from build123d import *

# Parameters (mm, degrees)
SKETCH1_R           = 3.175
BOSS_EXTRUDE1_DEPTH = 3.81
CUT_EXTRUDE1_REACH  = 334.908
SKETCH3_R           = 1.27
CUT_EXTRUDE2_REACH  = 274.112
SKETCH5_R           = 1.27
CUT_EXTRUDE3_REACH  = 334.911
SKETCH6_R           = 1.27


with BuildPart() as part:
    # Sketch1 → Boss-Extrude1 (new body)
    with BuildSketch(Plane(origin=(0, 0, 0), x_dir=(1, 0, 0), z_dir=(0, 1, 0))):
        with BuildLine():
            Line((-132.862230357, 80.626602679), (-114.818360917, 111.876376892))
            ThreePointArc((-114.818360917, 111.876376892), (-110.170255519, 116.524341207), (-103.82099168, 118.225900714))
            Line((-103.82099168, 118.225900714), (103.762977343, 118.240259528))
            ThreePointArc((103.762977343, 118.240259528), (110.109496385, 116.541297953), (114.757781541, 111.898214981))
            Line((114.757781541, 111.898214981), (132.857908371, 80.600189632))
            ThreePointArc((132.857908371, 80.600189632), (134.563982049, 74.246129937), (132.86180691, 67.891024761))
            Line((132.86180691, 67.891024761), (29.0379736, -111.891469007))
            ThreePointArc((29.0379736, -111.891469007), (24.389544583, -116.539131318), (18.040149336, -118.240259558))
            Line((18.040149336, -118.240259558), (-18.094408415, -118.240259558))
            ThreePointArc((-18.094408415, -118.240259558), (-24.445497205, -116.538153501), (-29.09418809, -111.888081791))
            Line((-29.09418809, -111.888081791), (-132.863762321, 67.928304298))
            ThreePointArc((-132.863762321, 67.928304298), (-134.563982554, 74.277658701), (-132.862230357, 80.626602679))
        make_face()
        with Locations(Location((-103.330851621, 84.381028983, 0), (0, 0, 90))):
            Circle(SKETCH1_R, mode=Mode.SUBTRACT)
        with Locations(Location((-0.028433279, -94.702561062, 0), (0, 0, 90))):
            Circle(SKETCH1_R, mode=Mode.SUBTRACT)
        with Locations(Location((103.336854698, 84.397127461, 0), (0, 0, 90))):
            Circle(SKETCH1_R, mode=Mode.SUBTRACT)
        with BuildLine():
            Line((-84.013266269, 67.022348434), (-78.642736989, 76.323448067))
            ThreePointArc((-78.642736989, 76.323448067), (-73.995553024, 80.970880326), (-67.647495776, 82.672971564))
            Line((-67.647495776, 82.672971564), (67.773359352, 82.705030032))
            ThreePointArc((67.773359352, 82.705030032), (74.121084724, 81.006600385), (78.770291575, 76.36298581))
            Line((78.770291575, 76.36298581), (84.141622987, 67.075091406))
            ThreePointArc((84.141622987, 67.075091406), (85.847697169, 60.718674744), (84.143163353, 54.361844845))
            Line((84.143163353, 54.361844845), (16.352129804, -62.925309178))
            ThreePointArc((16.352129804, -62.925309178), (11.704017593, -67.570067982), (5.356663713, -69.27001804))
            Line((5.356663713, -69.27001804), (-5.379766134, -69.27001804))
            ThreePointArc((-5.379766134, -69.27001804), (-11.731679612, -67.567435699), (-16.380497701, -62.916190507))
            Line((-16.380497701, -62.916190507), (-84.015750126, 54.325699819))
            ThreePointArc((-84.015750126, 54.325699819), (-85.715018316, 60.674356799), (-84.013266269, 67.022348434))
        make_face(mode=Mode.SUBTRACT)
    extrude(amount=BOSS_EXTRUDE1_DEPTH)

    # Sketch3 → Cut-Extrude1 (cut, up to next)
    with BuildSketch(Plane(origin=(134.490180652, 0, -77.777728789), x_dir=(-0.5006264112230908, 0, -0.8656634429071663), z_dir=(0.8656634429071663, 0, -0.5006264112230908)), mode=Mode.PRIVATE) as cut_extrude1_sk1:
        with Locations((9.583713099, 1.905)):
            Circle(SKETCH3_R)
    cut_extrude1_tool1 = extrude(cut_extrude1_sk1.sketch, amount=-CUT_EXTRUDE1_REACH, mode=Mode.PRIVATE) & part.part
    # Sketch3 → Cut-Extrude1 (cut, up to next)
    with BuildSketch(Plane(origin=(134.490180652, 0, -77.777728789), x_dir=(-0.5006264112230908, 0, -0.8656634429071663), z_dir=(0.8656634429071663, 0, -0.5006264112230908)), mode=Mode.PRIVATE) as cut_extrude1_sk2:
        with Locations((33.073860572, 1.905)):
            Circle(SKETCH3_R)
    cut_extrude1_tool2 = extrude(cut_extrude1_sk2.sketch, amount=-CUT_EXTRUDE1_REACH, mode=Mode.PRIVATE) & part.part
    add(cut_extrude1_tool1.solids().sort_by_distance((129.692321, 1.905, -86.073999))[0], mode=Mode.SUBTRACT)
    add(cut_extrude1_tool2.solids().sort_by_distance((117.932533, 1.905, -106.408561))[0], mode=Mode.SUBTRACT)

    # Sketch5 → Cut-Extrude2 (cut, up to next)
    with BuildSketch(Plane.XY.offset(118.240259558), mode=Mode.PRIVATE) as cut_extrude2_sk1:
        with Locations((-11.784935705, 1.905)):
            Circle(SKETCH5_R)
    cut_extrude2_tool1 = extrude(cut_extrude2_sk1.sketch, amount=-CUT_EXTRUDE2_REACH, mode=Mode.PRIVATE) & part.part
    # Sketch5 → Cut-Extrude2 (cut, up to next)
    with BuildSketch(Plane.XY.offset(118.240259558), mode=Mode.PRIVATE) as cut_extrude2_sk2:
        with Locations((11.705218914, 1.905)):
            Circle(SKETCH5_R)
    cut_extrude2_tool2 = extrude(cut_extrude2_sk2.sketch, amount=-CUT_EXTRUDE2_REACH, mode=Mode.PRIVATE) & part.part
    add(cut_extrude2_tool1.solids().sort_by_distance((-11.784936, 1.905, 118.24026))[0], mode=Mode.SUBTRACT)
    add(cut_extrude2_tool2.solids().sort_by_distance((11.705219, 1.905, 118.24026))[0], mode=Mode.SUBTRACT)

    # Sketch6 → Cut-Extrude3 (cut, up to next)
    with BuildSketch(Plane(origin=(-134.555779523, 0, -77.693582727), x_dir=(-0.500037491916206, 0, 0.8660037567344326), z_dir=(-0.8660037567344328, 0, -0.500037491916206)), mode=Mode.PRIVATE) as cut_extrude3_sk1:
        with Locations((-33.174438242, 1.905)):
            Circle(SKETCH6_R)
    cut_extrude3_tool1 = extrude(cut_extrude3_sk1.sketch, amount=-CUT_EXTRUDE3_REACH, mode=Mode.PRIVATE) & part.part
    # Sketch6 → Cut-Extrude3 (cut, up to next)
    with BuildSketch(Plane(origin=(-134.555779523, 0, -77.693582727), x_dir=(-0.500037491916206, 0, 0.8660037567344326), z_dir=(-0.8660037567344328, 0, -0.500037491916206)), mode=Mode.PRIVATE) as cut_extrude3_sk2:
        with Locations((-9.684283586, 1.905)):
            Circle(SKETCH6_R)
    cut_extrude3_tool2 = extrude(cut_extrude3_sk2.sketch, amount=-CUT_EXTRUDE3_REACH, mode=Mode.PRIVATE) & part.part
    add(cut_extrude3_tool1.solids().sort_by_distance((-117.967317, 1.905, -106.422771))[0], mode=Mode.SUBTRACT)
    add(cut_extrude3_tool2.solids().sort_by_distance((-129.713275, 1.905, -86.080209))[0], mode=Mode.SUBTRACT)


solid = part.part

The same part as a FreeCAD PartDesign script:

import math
import FreeCAD as App
import Part
import Sketcher
Q = App.Units.Quantity

doc = App.newDocument("Part")
body = doc.addObject("PartDesign::Body", "Body")

# Sketch on XZ plane
sketch1 = body.newObject("Sketcher::SketchObject", "Sketch")
sketch1.AttachmentSupport = (doc.getObject("XZ_Plane"), [""])
sketch1.MapMode = "FlatFace"
sketch1.addGeometry([
    Part.LineSegment(App.Vector(-114.8, -111.9, 0), App.Vector(-132.9, -80.6, 0)),  # 0
    Part.ArcOfCircle(Part.Circle(App.Vector(-121.9, -74.3, 0), App.Vector(0, 0, 1), 12.7), math.radians(150), math.radians(210)),  # 1
    Part.LineSegment(App.Vector(-132.9, -67.9, 0), App.Vector(-29.1, 111.9, 0)),  # 2
    Part.ArcOfCircle(Part.Circle(App.Vector(-18.1, 105.5, 0), App.Vector(0, 0, 1), 12.7), math.radians(90), math.radians(150)),  # 3
    Part.LineSegment(App.Vector(-18.1, 118.2, 0), App.Vector(18, 118.2, 0)),  # 4
    Part.ArcOfCircle(Part.Circle(App.Vector(18, 105.5, 0), App.Vector(0, 0, 1), 12.7), math.radians(30), math.radians(90)),  # 5
    Part.LineSegment(App.Vector(29, 111.9, 0), App.Vector(132.9, -67.9, 0)),  # 6
    Part.ArcOfCircle(Part.Circle(App.Vector(121.9, -74.2, 0), App.Vector(0, 0, 1), 12.7), math.radians(-30), math.radians(30)),  # 7
    Part.LineSegment(App.Vector(132.9, -80.6, 0), App.Vector(114.8, -111.9, 0)),  # 8
    Part.ArcOfCircle(Part.Circle(App.Vector(103.8, -105.5, 0), App.Vector(0, 0, 1), 12.7), math.radians(-90), math.radians(-30)),  # 9
    Part.LineSegment(App.Vector(103.8, -118.2, 0), App.Vector(-103.8, -118.2, 0)),  # 10
    Part.ArcOfCircle(Part.Circle(App.Vector(-103.8, -105.5, 0), App.Vector(0, 0, 1), 12.7), math.radians(-150), math.radians(-90)),  # 11
    Part.Circle(App.Vector(0, 94.7, 0), App.Vector(0, 0, 1), 3.2),  # 12
    Part.LineSegment(App.Vector(-84, -67, 0), App.Vector(-78.6, -76.3, 0)),  # 13
    Part.ArcOfCircle(Part.Circle(App.Vector(-67.6, -70, 0), App.Vector(0, 0, 1), 12.7), math.radians(-150), math.radians(-90)),  # 14
    Part.LineSegment(App.Vector(-67.6, -82.7, 0), App.Vector(67.8, -82.7, 0)),  # 15
    Part.ArcOfCircle(Part.Circle(App.Vector(67.8, -70, 0), App.Vector(0, 0, 1), 12.7), math.radians(-90), math.radians(-30)),  # 16
    Part.LineSegment(App.Vector(78.8, -76.4, 0), App.Vector(84.1, -67.1, 0)),  # 17
    Part.ArcOfCircle(Part.Circle(App.Vector(73.1, -60.7, 0), App.Vector(0, 0, 1), 12.7), math.radians(-30), math.radians(30)),  # 18
    Part.LineSegment(App.Vector(84.1, -54.4, 0), App.Vector(16.4, 62.9, 0)),  # 19
    Part.ArcOfCircle(Part.Circle(App.Vector(5.4, 56.6, 0), App.Vector(0, 0, 1), 12.7), math.radians(30), math.radians(90)),  # 20
    Part.LineSegment(App.Vector(5.4, 69.3, 0), App.Vector(-5.4, 69.3, 0)),  # 21
    Part.ArcOfCircle(Part.Circle(App.Vector(-5.4, 56.6, 0), App.Vector(0, 0, 1), 12.7), math.radians(90), math.radians(150)),  # 22
    Part.LineSegment(App.Vector(-16.4, 62.9, 0), App.Vector(-84, -54.3, 0)),  # 23
    Part.ArcOfCircle(Part.Circle(App.Vector(-73, -60.7, 0), App.Vector(0, 0, 1), 12.7), math.radians(150), math.radians(210)),  # 24
    Part.Circle(App.Vector(103.3, -84.4, 0), App.Vector(0, 0, 1), 3.2),  # 25
    Part.Circle(App.Vector(-103.3, -84.4, 0), App.Vector(0, 0, 1), 3.2),  # 26
], False)
sketch1.addConstraint([
    Sketcher.Constraint("Tangent", 0, 2, 1, 2),
    Sketcher.Constraint("Tangent", 1, 1, 2, 1),
    Sketcher.Constraint("Tangent", 2, 2, 3, 2),
    Sketcher.Constraint("Tangent", 3, 1, 4, 1),
    Sketcher.Constraint("Tangent", 4, 2, 5, 2),
    Sketcher.Constraint("Tangent", 5, 1, 6, 1),
    Sketcher.Constraint("Tangent", 6, 2, 7, 2),
    Sketcher.Constraint("Tangent", 7, 1, 8, 1),
    Sketcher.Constraint("Tangent", 8, 2, 9, 2),
    Sketcher.Constraint("Tangent", 9, 1, 10, 1),
    Sketcher.Constraint("Tangent", 10, 2, 11, 2),
    Sketcher.Constraint("Tangent", 11, 1, 0, 1),
    Sketcher.Constraint("Tangent", 13, 2, 14, 1),
    Sketcher.Constraint("Tangent", 14, 2, 15, 1),
    Sketcher.Constraint("Tangent", 15, 2, 16, 1),
    Sketcher.Constraint("Tangent", 16, 2, 17, 1),
    Sketcher.Constraint("Tangent", 17, 2, 18, 1),
    Sketcher.Constraint("Tangent", 18, 2, 19, 1),
    Sketcher.Constraint("Tangent", 19, 2, 20, 1),
    Sketcher.Constraint("Tangent", 20, 2, 21, 1),
    Sketcher.Constraint("Tangent", 21, 2, 22, 1),
    Sketcher.Constraint("Tangent", 22, 2, 23, 1),
    Sketcher.Constraint("Tangent", 23, 2, 24, 1),
    Sketcher.Constraint("Tangent", 24, 2, 13, 1),
    Sketcher.Constraint("Horizontal", 4),
    Sketcher.Constraint("Horizontal", 21),
    Sketcher.Constraint("Equal", 1, 3),
    Sketcher.Constraint("Equal", 3, 5),
    Sketcher.Constraint("Equal", 5, 7),
    Sketcher.Constraint("Equal", 7, 9),
    Sketcher.Constraint("Equal", 9, 11),
    Sketcher.Constraint("Equal", 11, 14),
    Sketcher.Constraint("Equal", 14, 16),
    Sketcher.Constraint("Equal", 16, 18),
    Sketcher.Constraint("Equal", 18, 20),
    Sketcher.Constraint("Equal", 20, 22),
    Sketcher.Constraint("Equal", 22, 24),
    Sketcher.Constraint("Equal", 12, 25),
    Sketcher.Constraint("Equal", 25, 26),
    Sketcher.Constraint("Parallel", 0, 13),
    Sketcher.Constraint("Parallel", 8, 17),
    Sketcher.Constraint("Radius", 1, Q("0.5 in")),
    Sketcher.Constraint("Diameter", 12, Q("0.25 in")),
    Sketcher.Constraint("DistanceX", 21, 2, 21, 1, 10.73643),
    Sketcher.Constraint("DistanceY", 11, 3, -1, 1, 105.525901),
    Sketcher.Constraint("DistanceY", 23, 2, -1, 1, 54.3257),
    Sketcher.Constraint("DistanceY", 12, 3, 3, 3, 10.837698),
    Sketcher.Constraint("DistanceX", 12, 3, 16, 3, 67.804799),
    Sketcher.Constraint("DistanceY", 7, 3, 18, 3, 13.525098),
    Sketcher.Constraint("DistanceY", 14, 3, 24, 3, 9.3011),
    Sketcher.Constraint("DistanceX", 25, 3, 9, 3, 0.427001),
    Sketcher.Constraint("DistanceY", 11, 3, 0, 2, 24.899298),
    Sketcher.Constraint("DistanceY", 0, 2, 1, 1, 12.698298),
    Sketcher.Constraint("DistanceX", 7, 1, 6, 2, 0.003899),
    Sketcher.Constraint("DistanceX", 8, 2, 7, 3, 7.106201),
    Sketcher.Constraint("DistanceX", 26, 3, 23, 2, 19.315101),
    Sketcher.Constraint("Distance", 2, 207.61035),
    Sketcher.Constraint("Distance", 10, 207.58397),
    Sketcher.Constraint("Distance", 15, 135.420859),
    Sketcher.Constraint("Distance", 17, 10.729221),
    Sketcher.Constraint("Distance", 23, 135.35209),
    Sketcher.Constraint("DistanceX", 4, 1, 4, 2, 36.134558),
    Sketcher.Constraint("DistanceX", 3, 3, -1, 1, 18.094408),
    Sketcher.Constraint("DistanceY", -1, 1, 3, 3, 105.54026),
    Sketcher.Constraint("DistanceY", 9, 3, -1, 1, 105.54026),
    Sketcher.Constraint("DistanceX", 14, 3, -1, 1, 67.644489),
    Sketcher.Constraint("DistanceY", 14, 3, -1, 1, 69.972972),
    Sketcher.Constraint("DistanceY", 26, 3, -1, 1, 84.381029),
    Sketcher.Constraint("DistanceY", 25, 3, 18, 3, 23.679991),
])
pad1 = body.newObject("PartDesign::Pad", "Pad")
pad1.Profile = sketch1
pad1.Length = Q("0.15 in")
pad1.Reversed = True

# Sketch on an angled plane
sketch2 = body.newObject("Sketcher::SketchObject", "Sketch001")
sketch2.Placement = App.Placement(App.Vector(134.490181, 0, -77.777729), App.Rotation(App.Vector(-0.500626411, 0, -0.865663443), App.Vector(0, 1, 0), App.Vector(0.865663443, 0, -0.500626411), "ZXY"))
sketch2.addGeometry(Part.Circle(App.Vector(9.6, 1.9, 0), App.Vector(0, 0, 1), 1.3), False)
sketch2.addConstraint([
    Sketcher.Constraint("Diameter", 0, Q("0.1 in")),
    Sketcher.Constraint("DistanceY", -1, 1, 0, 3, Q("0.075 in")),
    Sketcher.Constraint("DistanceX", -1, 1, 0, 3, 9.583713),
])
pocket1 = body.newObject("PartDesign::Pocket", "Pocket")
pocket1.Profile = sketch2
pocket1.Type = "UpToFirst"

# Sketch on an angled plane
sketch3 = body.newObject("Sketcher::SketchObject", "Sketch002")
sketch3.Placement = App.Placement(App.Vector(134.490181, 0, -77.777729), App.Rotation(App.Vector(-0.500626411, 0, -0.865663443), App.Vector(0, 1, 0), App.Vector(0.865663443, 0, -0.500626411), "ZXY"))
sketch3.addGeometry(Part.Circle(App.Vector(33.1, 1.9, 0), App.Vector(0, 0, 1), 1.3), False)
sketch3.addConstraint([
    Sketcher.Constraint("Diameter", 0, Q("0.1 in")),
    Sketcher.Constraint("DistanceY", -1, 1, 0, 3, Q("0.075 in")),
    Sketcher.Constraint("DistanceX", -1, 1, 0, 3, 33.073861),
])
pocket2 = body.newObject("PartDesign::Pocket", "Pocket001")
pocket2.Profile = sketch3
pocket2.Type = "UpToFirst"

# Sketch on XY plane
sketch4 = body.newObject("Sketcher::SketchObject", "Sketch003")
sketch4.AttachmentSupport = (doc.getObject("XY_Plane"), [""])
sketch4.MapMode = "FlatFace"
sketch4.AttachmentOffset = App.Placement(App.Vector(0, 0, 118.24026), App.Rotation())
sketch4.addGeometry(Part.Circle(App.Vector(-11.8, 1.9, 0), App.Vector(0, 0, 1), 1.3), False)
sketch4.addConstraint([
    Sketcher.Constraint("Diameter", 0, Q("0.1 in")),
    Sketcher.Constraint("DistanceY", -1, 1, 0, 3, Q("0.075 in")),
    Sketcher.Constraint("DistanceX", 0, 3, -1, 1, 11.784936),
])
pocket3 = body.newObject("PartDesign::Pocket", "Pocket002")
pocket3.Profile = sketch4
pocket3.Type = "UpToFirst"

# Sketch on XY plane
sketch5 = body.newObject("Sketcher::SketchObject", "Sketch004")
sketch5.AttachmentSupport = (doc.getObject("XY_Plane"), [""])
sketch5.MapMode = "FlatFace"
sketch5.AttachmentOffset = App.Placement(App.Vector(0, 0, 118.24026), App.Rotation())
sketch5.addGeometry(Part.Circle(App.Vector(11.7, 1.9, 0), App.Vector(0, 0, 1), 1.3), False)
sketch5.addConstraint([
    Sketcher.Constraint("Diameter", 0, Q("0.1 in")),
    Sketcher.Constraint("DistanceY", -1, 1, 0, 3, Q("0.075 in")),
    Sketcher.Constraint("DistanceX", -1, 1, 0, 3, 11.705219),
])
pocket4 = body.newObject("PartDesign::Pocket", "Pocket003")
pocket4.Profile = sketch5
pocket4.Type = "UpToFirst"

# Sketch on an angled plane
sketch6 = body.newObject("Sketcher::SketchObject", "Sketch005")
sketch6.Placement = App.Placement(App.Vector(-134.55578, 0, -77.693583), App.Rotation(App.Vector(-0.500037492, 0, 0.866003757), App.Vector(0, 1.000000001, 0), App.Vector(-0.866003757, 0, -0.500037492), "ZXY"))
sketch6.addGeometry(Part.Circle(App.Vector(-33.2, 1.9, 0), App.Vector(0, 0, 1), 1.3), False)
sketch6.addConstraint([
    Sketcher.Constraint("Diameter", 0, Q("0.1 in")),
    Sketcher.Constraint("DistanceY", -1, 1, 0, 3, Q("0.075 in")),
    Sketcher.Constraint("DistanceX", 0, 3, -1, 1, 33.174438),
])
pocket5 = body.newObject("PartDesign::Pocket", "Pocket004")
pocket5.Profile = sketch6
pocket5.Type = "UpToFirst"

# Sketch on an angled plane
sketch7 = body.newObject("Sketcher::SketchObject", "Sketch006")
sketch7.Placement = App.Placement(App.Vector(-134.55578, 0, -77.693583), App.Rotation(App.Vector(-0.500037492, 0, 0.866003757), App.Vector(0, 1.000000001, 0), App.Vector(-0.866003757, 0, -0.500037492), "ZXY"))
sketch7.addGeometry(Part.Circle(App.Vector(-9.7, 1.9, 0), App.Vector(0, 0, 1), 1.3), False)
sketch7.addConstraint([
    Sketcher.Constraint("Diameter", 0, Q("0.1 in")),
    Sketcher.Constraint("DistanceY", -1, 1, 0, 3, Q("0.075 in")),
    Sketcher.Constraint("DistanceX", 0, 3, -1, 1, 9.684284),
])
pocket6 = body.newObject("PartDesign::Pocket", "Pocket005")
pocket6.Profile = sketch7
pocket6.Type = "UpToFirst"

doc.recompute()
